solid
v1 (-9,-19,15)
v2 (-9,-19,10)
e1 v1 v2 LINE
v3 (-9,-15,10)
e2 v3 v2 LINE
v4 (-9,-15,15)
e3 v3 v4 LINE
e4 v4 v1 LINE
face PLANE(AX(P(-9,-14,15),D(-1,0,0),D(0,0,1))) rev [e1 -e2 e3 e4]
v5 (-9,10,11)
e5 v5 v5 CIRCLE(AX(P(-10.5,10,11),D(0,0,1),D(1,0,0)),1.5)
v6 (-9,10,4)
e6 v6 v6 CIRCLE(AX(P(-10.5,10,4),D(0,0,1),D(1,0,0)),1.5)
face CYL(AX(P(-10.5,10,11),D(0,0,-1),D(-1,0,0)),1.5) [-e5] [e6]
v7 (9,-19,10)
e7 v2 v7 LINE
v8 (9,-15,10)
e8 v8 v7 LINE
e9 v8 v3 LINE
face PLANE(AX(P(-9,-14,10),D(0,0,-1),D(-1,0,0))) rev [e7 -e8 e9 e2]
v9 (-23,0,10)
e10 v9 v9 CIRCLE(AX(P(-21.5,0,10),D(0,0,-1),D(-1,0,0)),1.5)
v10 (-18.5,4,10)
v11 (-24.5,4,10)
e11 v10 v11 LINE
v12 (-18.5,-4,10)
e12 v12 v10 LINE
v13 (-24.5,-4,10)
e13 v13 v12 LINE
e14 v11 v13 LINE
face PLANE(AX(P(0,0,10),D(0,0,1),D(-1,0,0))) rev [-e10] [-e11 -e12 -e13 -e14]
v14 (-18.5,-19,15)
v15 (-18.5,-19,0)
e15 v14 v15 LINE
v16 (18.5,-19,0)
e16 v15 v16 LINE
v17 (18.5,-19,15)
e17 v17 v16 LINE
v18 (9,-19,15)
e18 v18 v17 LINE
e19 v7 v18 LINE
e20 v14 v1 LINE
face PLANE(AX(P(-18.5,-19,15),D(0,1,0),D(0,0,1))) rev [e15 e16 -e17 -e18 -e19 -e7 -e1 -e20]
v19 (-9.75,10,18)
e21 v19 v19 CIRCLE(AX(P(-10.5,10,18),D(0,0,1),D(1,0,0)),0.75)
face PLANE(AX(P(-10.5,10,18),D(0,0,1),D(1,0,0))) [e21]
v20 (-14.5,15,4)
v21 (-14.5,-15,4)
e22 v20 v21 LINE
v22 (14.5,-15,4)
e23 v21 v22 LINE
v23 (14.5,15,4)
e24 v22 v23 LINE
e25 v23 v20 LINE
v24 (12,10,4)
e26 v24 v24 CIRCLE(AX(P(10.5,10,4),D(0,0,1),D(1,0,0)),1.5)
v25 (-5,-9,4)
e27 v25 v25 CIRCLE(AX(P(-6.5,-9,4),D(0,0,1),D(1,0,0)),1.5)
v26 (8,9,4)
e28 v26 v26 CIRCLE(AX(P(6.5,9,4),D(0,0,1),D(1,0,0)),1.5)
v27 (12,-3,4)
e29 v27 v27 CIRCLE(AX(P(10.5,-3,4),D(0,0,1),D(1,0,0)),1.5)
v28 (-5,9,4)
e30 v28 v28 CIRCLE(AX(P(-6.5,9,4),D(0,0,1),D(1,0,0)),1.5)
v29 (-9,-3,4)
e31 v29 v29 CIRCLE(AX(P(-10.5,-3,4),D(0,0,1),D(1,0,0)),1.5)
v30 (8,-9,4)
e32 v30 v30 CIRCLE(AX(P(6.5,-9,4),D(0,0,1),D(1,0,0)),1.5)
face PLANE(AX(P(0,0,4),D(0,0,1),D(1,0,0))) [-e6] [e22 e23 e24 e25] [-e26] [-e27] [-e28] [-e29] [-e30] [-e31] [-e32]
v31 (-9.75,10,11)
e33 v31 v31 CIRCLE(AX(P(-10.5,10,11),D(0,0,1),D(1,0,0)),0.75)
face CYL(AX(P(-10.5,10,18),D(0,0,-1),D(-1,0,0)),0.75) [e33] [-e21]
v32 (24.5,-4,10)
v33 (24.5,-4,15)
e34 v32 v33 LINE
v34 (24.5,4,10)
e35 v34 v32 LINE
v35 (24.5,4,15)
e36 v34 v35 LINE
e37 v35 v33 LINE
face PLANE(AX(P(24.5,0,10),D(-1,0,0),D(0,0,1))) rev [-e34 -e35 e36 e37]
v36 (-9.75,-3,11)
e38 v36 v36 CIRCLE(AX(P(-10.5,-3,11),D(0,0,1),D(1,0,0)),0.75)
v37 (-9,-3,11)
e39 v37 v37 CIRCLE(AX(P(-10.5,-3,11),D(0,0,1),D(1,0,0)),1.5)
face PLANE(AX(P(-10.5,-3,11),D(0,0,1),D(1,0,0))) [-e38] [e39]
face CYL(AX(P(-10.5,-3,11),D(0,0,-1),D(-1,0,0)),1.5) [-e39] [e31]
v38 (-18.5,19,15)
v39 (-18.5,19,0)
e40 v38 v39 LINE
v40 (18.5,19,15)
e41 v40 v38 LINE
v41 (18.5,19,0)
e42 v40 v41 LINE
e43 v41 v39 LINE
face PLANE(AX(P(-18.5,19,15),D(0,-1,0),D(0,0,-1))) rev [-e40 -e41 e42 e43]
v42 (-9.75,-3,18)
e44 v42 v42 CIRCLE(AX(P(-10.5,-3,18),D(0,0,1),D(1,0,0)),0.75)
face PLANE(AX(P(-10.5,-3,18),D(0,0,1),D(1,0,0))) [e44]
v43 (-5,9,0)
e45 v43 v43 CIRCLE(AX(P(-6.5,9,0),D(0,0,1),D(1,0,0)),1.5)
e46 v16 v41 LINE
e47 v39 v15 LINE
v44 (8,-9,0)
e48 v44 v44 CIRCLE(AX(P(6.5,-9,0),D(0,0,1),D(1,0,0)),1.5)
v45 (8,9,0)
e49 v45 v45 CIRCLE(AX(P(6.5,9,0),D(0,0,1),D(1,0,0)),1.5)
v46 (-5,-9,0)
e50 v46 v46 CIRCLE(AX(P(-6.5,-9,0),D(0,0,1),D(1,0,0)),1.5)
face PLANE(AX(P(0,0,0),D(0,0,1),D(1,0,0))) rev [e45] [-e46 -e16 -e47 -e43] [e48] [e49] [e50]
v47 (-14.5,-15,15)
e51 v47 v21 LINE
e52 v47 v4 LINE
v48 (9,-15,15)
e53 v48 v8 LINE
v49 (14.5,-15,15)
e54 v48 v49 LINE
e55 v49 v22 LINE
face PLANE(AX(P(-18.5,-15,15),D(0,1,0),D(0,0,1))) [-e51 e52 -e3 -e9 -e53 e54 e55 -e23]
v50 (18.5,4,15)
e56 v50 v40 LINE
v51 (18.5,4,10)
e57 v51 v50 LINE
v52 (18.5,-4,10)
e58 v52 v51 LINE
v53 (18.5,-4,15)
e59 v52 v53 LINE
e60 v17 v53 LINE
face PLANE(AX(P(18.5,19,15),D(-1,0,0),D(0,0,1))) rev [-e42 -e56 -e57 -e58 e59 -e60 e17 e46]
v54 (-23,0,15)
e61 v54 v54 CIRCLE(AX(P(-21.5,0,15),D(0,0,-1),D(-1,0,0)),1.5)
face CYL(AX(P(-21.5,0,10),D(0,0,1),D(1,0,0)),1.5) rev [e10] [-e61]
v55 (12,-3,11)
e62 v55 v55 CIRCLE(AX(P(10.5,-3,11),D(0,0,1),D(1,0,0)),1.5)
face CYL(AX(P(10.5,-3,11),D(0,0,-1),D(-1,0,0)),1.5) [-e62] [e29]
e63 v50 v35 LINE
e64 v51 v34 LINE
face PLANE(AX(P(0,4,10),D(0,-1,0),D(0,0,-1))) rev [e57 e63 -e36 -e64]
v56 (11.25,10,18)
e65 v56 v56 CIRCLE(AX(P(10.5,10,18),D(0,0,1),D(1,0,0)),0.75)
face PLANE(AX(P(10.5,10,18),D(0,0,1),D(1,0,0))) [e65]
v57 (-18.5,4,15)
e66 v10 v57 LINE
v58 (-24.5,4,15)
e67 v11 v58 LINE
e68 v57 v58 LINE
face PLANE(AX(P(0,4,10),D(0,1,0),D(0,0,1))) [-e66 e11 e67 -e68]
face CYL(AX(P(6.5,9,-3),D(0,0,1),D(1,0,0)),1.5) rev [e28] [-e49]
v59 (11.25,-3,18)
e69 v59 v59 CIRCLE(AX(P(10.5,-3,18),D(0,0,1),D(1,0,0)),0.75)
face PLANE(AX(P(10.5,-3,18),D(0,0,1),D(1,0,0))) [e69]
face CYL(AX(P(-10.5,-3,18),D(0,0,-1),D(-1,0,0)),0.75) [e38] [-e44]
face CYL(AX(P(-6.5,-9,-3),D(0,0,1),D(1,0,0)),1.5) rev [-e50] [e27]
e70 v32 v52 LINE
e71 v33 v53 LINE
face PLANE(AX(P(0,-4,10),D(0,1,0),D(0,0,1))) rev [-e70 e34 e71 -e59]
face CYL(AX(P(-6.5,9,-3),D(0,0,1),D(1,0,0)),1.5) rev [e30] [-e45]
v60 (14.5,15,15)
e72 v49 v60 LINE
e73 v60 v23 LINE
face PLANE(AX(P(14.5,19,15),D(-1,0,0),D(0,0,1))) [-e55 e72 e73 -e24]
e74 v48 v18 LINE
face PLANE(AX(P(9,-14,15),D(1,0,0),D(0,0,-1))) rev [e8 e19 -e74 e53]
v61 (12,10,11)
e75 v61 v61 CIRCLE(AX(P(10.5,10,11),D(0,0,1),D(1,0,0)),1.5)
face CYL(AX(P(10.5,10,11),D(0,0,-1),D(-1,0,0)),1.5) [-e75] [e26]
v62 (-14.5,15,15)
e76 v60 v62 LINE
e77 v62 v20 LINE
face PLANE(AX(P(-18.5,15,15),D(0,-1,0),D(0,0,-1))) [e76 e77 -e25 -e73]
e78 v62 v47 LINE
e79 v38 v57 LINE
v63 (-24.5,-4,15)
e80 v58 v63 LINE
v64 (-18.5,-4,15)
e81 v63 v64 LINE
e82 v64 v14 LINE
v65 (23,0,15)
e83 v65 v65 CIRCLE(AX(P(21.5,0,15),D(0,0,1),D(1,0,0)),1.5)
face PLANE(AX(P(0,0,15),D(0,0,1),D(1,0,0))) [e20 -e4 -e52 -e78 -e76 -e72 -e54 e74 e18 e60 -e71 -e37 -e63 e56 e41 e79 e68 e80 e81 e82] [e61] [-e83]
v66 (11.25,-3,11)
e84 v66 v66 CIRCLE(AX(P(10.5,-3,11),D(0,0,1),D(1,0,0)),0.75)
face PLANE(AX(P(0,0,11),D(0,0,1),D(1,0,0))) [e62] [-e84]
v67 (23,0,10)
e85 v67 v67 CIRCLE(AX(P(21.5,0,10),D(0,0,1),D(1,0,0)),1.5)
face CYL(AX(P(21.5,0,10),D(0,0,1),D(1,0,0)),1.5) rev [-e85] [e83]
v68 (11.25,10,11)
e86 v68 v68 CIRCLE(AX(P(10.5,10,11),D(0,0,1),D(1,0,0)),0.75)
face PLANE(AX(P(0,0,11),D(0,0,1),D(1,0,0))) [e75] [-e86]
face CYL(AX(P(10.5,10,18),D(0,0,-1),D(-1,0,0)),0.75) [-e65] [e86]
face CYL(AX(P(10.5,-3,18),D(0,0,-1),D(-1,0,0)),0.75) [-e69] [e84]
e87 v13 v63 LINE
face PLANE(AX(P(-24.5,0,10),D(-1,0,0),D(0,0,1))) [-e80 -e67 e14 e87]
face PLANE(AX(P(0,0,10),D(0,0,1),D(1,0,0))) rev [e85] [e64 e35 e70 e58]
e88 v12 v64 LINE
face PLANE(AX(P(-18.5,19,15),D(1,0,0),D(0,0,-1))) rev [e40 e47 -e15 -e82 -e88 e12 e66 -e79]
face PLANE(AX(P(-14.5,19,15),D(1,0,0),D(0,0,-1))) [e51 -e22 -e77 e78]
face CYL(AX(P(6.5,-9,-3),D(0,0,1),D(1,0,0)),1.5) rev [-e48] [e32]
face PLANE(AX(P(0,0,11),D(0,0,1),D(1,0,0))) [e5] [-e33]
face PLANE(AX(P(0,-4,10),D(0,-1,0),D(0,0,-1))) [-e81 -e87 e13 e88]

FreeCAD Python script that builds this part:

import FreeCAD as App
import Part
import Sketcher


def faces_at(feature, points):
    """Names of the faces that lie closest to the given points."""
    faces = feature.Shape.Faces
    near = lambda p: min(range(len(faces)), key=lambda i: faces[i].distToShape(Part.Vertex(*p))[0])
    return sorted({f"Face{near(p) + 1}" for p in points})

doc = App.newDocument("Part")
body = doc.addObject("PartDesign::Body", "Body")

sketch1 = body.newObject("Sketcher::SketchObject", "Sketch")
sketch1.AttachmentSupport = (doc.getObject("XY_Plane"), [""])
sketch1.MapMode = "FlatFace"
sketch1.addGeometry(Part.LineSegment(App.Vector(-18, 19, 0), App.Vector(-18, -19, 0)), False)
sketch1.addGeometry(Part.LineSegment(App.Vector(-18, -19, 0), App.Vector(18, -19, 0)), False)
sketch1.addGeometry(Part.LineSegment(App.Vector(18, -19, 0), App.Vector(18, 19, 0)), False)
sketch1.addGeometry(Part.LineSegment(App.Vector(18, 19, 0), App.Vector(-18, 19, 0)), False)
sketch1.addConstraint(Sketcher.Constraint("Coincident", 0, 2, 1, 1))
sketch1.addConstraint(Sketcher.Constraint("Coincident", 1, 2, 2, 1))
sketch1.addConstraint(Sketcher.Constraint("Coincident", 2, 2, 3, 1))
sketch1.addConstraint(Sketcher.Constraint("Coincident", 3, 2, 0, 1))
sketch1.addConstraint(Sketcher.Constraint("Vertical", 0))
sketch1.addConstraint(Sketcher.Constraint("Horizontal", 1))
sketch1.addConstraint(Sketcher.Constraint("Vertical", 2))
sketch1.addConstraint(Sketcher.Constraint("Horizontal", 3))
sketch1.addConstraint(Sketcher.Constraint("Symmetric", 0, 2, 2, 2, -1, 1))
sketch1.addConstraint(Sketcher.Constraint("DistanceX", 1, 1, 1, 2, 37.0))
sketch1.addConstraint(Sketcher.Constraint("DistanceY", 0, 2, 0, 1, 38.0))
pad1 = body.newObject("PartDesign::Pad", "Pad")
pad1.Profile = sketch1
pad1.Length = 15
doc.recompute()

thickness = body.newObject("PartDesign::Thickness", "Thickness")
thickness.Base = (pad1, faces_at(pad1, [(0, 0, 15)]))
thickness.Value = 4
thickness.Reversed = True
thickness.Join = "Intersection"

sketch2 = body.newObject("Sketcher::SketchObject", "Sketch001")
sketch2.AttachmentSupport = (doc.getObject("XY_Plane"), [""])
sketch2.MapMode = "FlatFace"
sketch2.AttachmentOffset = App.Placement(App.Vector(0, 0, 15), App.Rotation())
sketch2.addGeometry(Part.LineSegment(App.Vector(18.5, 4, 0), App.Vector(18.5, -4, 0)), False)
sketch2.addGeometry(Part.LineSegment(App.Vector(18.5, -4, 0), App.Vector(24.5, -4, 0)), False)
sketch2.addGeometry(Part.LineSegment(App.Vector(24.5, -4, 0), App.Vector(24.5, 4, 0)), False)
sketch2.addGeometry(Part.LineSegment(App.Vector(24.5, 4, 0), App.Vector(18.5, 4, 0)), False)
sketch2.addGeometry(Part.Circle(App.Vector(21.5, 0, 0), App.Vector(0, 0, 1), 1.5), False)
sketch2.addConstraint(Sketcher.Constraint("Coincident", 0, 2, 1, 1))
sketch2.addConstraint(Sketcher.Constraint("Coincident", 1, 2, 2, 1))
sketch2.addConstraint(Sketcher.Constraint("Coincident", 2, 2, 3, 1))
sketch2.addConstraint(Sketcher.Constraint("Coincident", 3, 2, 0, 1))
sketch2.addConstraint(Sketcher.Constraint("Vertical", 0))
sketch2.addConstraint(Sketcher.Constraint("Horizontal", 1))
sketch2.addConstraint(Sketcher.Constraint("Vertical", 2))
sketch2.addConstraint(Sketcher.Constraint("Horizontal", 3))
sketch2.addConstraint(Sketcher.Constraint("PointOnObject", 4, 3, -1))
sketch2.addConstraint(Sketcher.Constraint("Diameter", 4, 3.0))
sketch2.addConstraint(Sketcher.Constraint("DistanceX", 1, 1, 1, 2, 6.0))
sketch2.addConstraint(Sketcher.Constraint("DistanceY", 0, 2, 0, 1, 8.0))
sketch2.addConstraint(Sketcher.Constraint("DistanceY", 0, 2, -1, 1, 4.0))
sketch2.addConstraint(Sketcher.Constraint("DistanceX", 0, 2, 4, 3, 3.0))
sketch2.addConstraint(Sketcher.Constraint("DistanceX", -1, 1, 4, 3, 21.5))
pad2 = body.newObject("PartDesign::Pad", "Pad001")
pad2.Profile = sketch2
pad2.Length = 5
pad2.Reversed = True
doc.recompute()

mirrored = body.newObject("PartDesign::Mirrored", "Mirrored")
mirrored.Originals = [pad2]
mirrored.MirrorPlane = (doc.getObject("YZ_Plane"), [""])
body.Tip = mirrored

sketch3 = body.newObject("Sketcher::SketchObject", "Sketch002")
sketch3.AttachmentSupport = (doc.getObject("XZ_Plane"), [""])
sketch3.MapMode = "FlatFace"
sketch3.AttachmentOffset = App.Placement(App.Vector(0, 0, 19), App.Rotation())
sketch3.addGeometry(Part.LineSegment(App.Vector(-9, 15, 0), App.Vector(-9, 10, 0)), False)
sketch3.addGeometry(Part.LineSegment(App.Vector(-9, 10, 0), App.Vector(9, 10, 0)), False)
sketch3.addGeometry(Part.LineSegment(App.Vector(9, 10, 0), App.Vector(9, 15, 0)), False)
sketch3.addGeometry(Part.LineSegment(App.Vector(9, 15, 0), App.Vector(-9, 15, 0)), False)
sketch3.addConstraint(Sketcher.Constraint("Coincident", 0, 2, 1, 1))
sketch3.addConstraint(Sketcher.Constraint("Coincident", 1, 2, 2, 1))
sketch3.addConstraint(Sketcher.Constraint("Coincident", 2, 2, 3, 1))
sketch3.addConstraint(Sketcher.Constraint("Coincident", 3, 2, 0, 1))
sketch3.addConstraint(Sketcher.Constraint("Vertical", 0))
sketch3.addConstraint(Sketcher.Constraint("Horizontal", 1))
sketch3.addConstraint(Sketcher.Constraint("Vertical", 2))
sketch3.addConstraint(Sketcher.Constraint("Horizontal", 3))
sketch3.addConstraint(Sketcher.Constraint("DistanceX", 1, 1, 1, 2, 18.0))
sketch3.addConstraint(Sketcher.Constraint("DistanceY", 0, 2, 0, 1, 5.0))
sketch3.addConstraint(Sketcher.Constraint("DistanceX", 0, 2, -1, 1, 9.0))
sketch3.addConstraint(Sketcher.Constraint("DistanceY", -1, 1, 0, 2, 10.0))
pocket1 = body.newObject("PartDesign::Pocket", "Pocket")
pocket1.Profile = sketch3
pocket1.Length = 5

sketch4 = body.newObject("Sketcher::SketchObject", "Sketch003")
sketch4.AttachmentSupport = (doc.getObject("XY_Plane"), [""])
sketch4.MapMode = "FlatFace"
sketch4.AttachmentOffset = App.Placement(App.Vector(0, 0, 4), App.Rotation())
sketch4.addGeometry(Part.Circle(App.Vector(-10.5, 10, 0), App.Vector(0, 0, 1), 1.5), False)
sketch4.addGeometry(Part.Circle(App.Vector(10.5, 10, 0), App.Vector(0, 0, 1), 1.5), False)
sketch4.addGeometry(Part.Circle(App.Vector(10.5, -3, 0), App.Vector(0, 0, 1), 1.5), False)
sketch4.addGeometry(Part.Circle(App.Vector(-10.5, -3, 0), App.Vector(0, 0, 1), 1.5), False)
sketch4.addConstraint(Sketcher.Constraint("Equal", 0, 1))
sketch4.addConstraint(Sketcher.Constraint("Equal", 1, 2))
sketch4.addConstraint(Sketcher.Constraint("Equal", 2, 3))
sketch4.addConstraint(Sketcher.Constraint("Symmetric", 0, 3, 1, 3, -2))
sketch4.addConstraint(Sketcher.Constraint("Symmetric", 2, 3, 3, 3, -2))
sketch4.addConstraint(Sketcher.Constraint("Vertical", 1, 3, 2, 3))
sketch4.addConstraint(Sketcher.Constraint("Diameter", 0, 3.0))
sketch4.addConstraint(Sketcher.Constraint("DistanceY", -1, 1, 0, 3, 10.0))
sketch4.addConstraint(Sketcher.Constraint("DistanceY", 2, 3, -1, 1, 3.0))
sketch4.addConstraint(Sketcher.Constraint("DistanceX", 0, 3, 1, 3, 21.0))
pad3 = body.newObject("PartDesign::Pad", "Pad002")
pad3.Profile = sketch4
pad3.Length = 7

sketch5 = body.newObject("Sketcher::SketchObject", "Sketch004")
sketch5.AttachmentSupport = (doc.getObject("XY_Plane"), [""])
sketch5.MapMode = "FlatFace"
sketch5.AttachmentOffset = App.Placement(App.Vector(0, 0, 11), App.Rotation())
sketch5.addGeometry(Part.Circle(App.Vector(-10.5, 10, 0), App.Vector(0, 0, 1), 0.8), False)
sketch5.addGeometry(Part.Circle(App.Vector(10.5, 10, 0), App.Vector(0, 0, 1), 0.8), False)
sketch5.addGeometry(Part.Circle(App.Vector(10.5, -3, 0), App.Vector(0, 0, 1), 0.8), False)
sketch5.addGeometry(Part.Circle(App.Vector(-10.5, -3, 0), App.Vector(0, 0, 1), 0.8), False)
sketch5.addConstraint(Sketcher.Constraint("Equal", 0, 1))
sketch5.addConstraint(Sketcher.Constraint("Equal", 1, 2))
sketch5.addConstraint(Sketcher.Constraint("Equal", 2, 3))
sketch5.addConstraint(Sketcher.Constraint("Symmetric", 0, 3, 1, 3, -2))
sketch5.addConstraint(Sketcher.Constraint("Symmetric", 2, 3, 3, 3, -2))
sketch5.addConstraint(Sketcher.Constraint("Vertical", 1, 3, 2, 3))
sketch5.addConstraint(Sketcher.Constraint("Diameter", 0, 1.5))
sketch5.addConstraint(Sketcher.Constraint("DistanceY", -1, 1, 0, 3, 10.0))
sketch5.addConstraint(Sketcher.Constraint("DistanceY", 2, 3, -1, 1, 3.0))
sketch5.addConstraint(Sketcher.Constraint("DistanceX", 0, 3, 1, 3, 21.0))
pad4 = body.newObject("PartDesign::Pad", "Pad003")
pad4.Profile = sketch5
pad4.Length = 7

sketch6 = body.newObject("Sketcher::SketchObject", "Sketch005")
sketch6.AttachmentSupport = (doc.getObject("XY_Plane"), [""])
sketch6.MapMode = "FlatFace"
sketch6.AttachmentOffset = App.Placement(App.Vector(0, 0, 4), App.Rotation())
sketch6.addGeometry(Part.Circle(App.Vector(-6.5, 9, 0), App.Vector(0, 0, 1), 1.5), False)
sketch6.addGeometry(Part.Circle(App.Vector(6.5, 9, 0), App.Vector(0, 0, 1), 1.5), False)
sketch6.addGeometry(Part.Circle(App.Vector(6.5, -9, 0), App.Vector(0, 0, 1), 1.5), False)
sketch6.addGeometry(Part.Circle(App.Vector(-6.5, -9, 0), App.Vector(0, 0, 1), 1.5), False)
sketch6.addConstraint(Sketcher.Constraint("Equal", 0, 1))
sketch6.addConstraint(Sketcher.Constraint("Equal", 1, 2))
sketch6.addConstraint(Sketcher.Constraint("Equal", 2, 3))
sketch6.addConstraint(Sketcher.Constraint("Symmetric", 0, 3, 2, 3, -1, 1))
sketch6.addConstraint(Sketcher.Constraint("Symmetric", 1, 3, 3, 3, -1, 1))
sketch6.addConstraint(Sketcher.Constraint("Symmetric", 0, 3, 1, 3, -2))
sketch6.addConstraint(Sketcher.Constraint("Diameter", 0, 3.0))
sketch6.addConstraint(Sketcher.Constraint("DistanceY", -1, 1, 0, 3, 9.0))
sketch6.addConstraint(Sketcher.Constraint("DistanceX", 0, 3, 1, 3, 13.0))
pocket2 = body.newObject("PartDesign::Pocket", "Pocket001")
pocket2.Profile = sketch6
pocket2.Length = 7

doc.recompute()
